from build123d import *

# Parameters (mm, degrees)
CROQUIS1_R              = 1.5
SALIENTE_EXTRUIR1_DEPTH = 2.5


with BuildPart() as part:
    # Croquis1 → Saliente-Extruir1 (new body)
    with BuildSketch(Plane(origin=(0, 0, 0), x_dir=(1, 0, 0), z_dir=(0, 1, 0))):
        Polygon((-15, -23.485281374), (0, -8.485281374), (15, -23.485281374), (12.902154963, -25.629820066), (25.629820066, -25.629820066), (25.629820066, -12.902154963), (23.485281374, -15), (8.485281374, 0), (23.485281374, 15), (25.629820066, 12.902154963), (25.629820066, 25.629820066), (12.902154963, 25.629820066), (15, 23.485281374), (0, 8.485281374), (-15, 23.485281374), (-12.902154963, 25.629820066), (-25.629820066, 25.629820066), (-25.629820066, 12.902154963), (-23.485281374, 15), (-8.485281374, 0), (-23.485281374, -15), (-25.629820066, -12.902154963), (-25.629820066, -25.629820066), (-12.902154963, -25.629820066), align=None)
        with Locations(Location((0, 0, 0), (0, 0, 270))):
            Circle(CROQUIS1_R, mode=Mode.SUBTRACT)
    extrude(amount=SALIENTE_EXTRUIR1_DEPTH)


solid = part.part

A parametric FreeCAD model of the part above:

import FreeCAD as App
import Part
import Sketcher
Q = App.Units.Quantity

doc = App.newDocument("Part")
body = doc.addObject("PartDesign::Body", "Body")

# Sketch on XZ plane
sketch1 = body.newObject("Sketcher::SketchObject", "Sketch")
sketch1.AttachmentSupport = (doc.getObject("XZ_Plane"), [""])
sketch1.MapMode = "FlatFace"
sketch1.addGeometry([
    Part.LineSegment(App.Vector(-15, 23.485281, 0), App.Vector(0, 8.485281, 0)),  # 0
    Part.LineSegment(App.Vector(0, 8.485281, 0), App.Vector(15, 23.485281, 0)),  # 1
    Part.LineSegment(App.Vector(15, 23.485281, 0), App.Vector(12.902155, 25.62982, 0)),  # 2
    Part.LineSegment(App.Vector(12.902155, 25.62982, 0), App.Vector(25.62982, 25.62982, 0)),  # 3
    Part.LineSegment(App.Vector(25.62982, 25.62982, 0), App.Vector(25.62982, 12.902155, 0)),  # 4
    Part.LineSegment(App.Vector(25.62982, 12.902155, 0), App.Vector(23.485281, 15, 0)),  # 5
    Part.LineSegment(App.Vector(23.485281, 15, 0), App.Vector(8.485281, 0, 0)),  # 6
    Part.LineSegment(App.Vector(8.485281, 0, 0), App.Vector(23.485281, -15, 0)),  # 7
    Part.LineSegment(App.Vector(23.485281, -15, 0), App.Vector(25.62982, -12.902155, 0)),  # 8
    Part.LineSegment(App.Vector(25.62982, -12.902155, 0), App.Vector(25.62982, -25.62982, 0)),  # 9
    Part.LineSegment(App.Vector(25.62982, -25.62982, 0), App.Vector(12.902155, -25.62982, 0)),  # 10
    Part.LineSegment(App.Vector(12.902155, -25.62982, 0), App.Vector(15, -23.485281, 0)),  # 11
    Part.LineSegment(App.Vector(15, -23.485281, 0), App.Vector(0, -8.485281, 0)),  # 12
    Part.LineSegment(App.Vector(0, -8.485281, 0), App.Vector(-15, -23.485281, 0)),  # 13
    Part.LineSegment(App.Vector(-15, -23.485281, 0), App.Vector(-12.902155, -25.62982, 0)),  # 14
    Part.LineSegment(App.Vector(-12.902155, -25.62982, 0), App.Vector(-25.62982, -25.62982, 0)),  # 15
    Part.LineSegment(App.Vector(-25.62982, -25.62982, 0), App.Vector(-25.62982, -12.902155, 0)),  # 16
    Part.LineSegment(App.Vector(-25.62982, -12.902155, 0), App.Vector(-23.485281, -15, 0)),  # 17
    Part.LineSegment(App.Vector(-23.485281, -15, 0), App.Vector(-8.485281, 0, 0)),  # 18
    Part.LineSegment(App.Vector(-8.485281, 0, 0), App.Vector(-23.485281, 15, 0)),  # 19
    Part.LineSegment(App.Vector(-23.485281, 15, 0), App.Vector(-25.62982, 12.902155, 0)),  # 20
    Part.LineSegment(App.Vector(-25.62982, 12.902155, 0), App.Vector(-25.62982, 25.62982, 0)),  # 21
    Part.LineSegment(App.Vector(-25.62982, 25.62982, 0), App.Vector(-12.902155, 25.62982, 0)),  # 22
    Part.LineSegment(App.Vector(-12.902155, 25.62982, 0), App.Vector(-15, 23.485281, 0)),  # 23
    Part.Circle(App.Vector(0, 0, 0), App.Vector(0, 0, 1), 1.5),  # 24
], False)
sketch1.addConstraint([
    Sketcher.Constraint("Coincident", 0, 2, 1, 1),
    Sketcher.Constraint("Coincident", 1, 2, 2, 1),
    Sketcher.Constraint("Coincident", 2, 2, 3, 1),
    Sketcher.Constraint("Coincident", 3, 2, 4, 1),
    Sketcher.Constraint("Coincident", 4, 2, 5, 1),
    Sketcher.Constraint("Coincident", 5, 2, 6, 1),
    Sketcher.Constraint("Coincident", 6, 2, 7, 1),
    Sketcher.Constraint("Coincident", 7, 2, 8, 1),
    Sketcher.Constraint("Coincident", 8, 2, 9, 1),
    Sketcher.Constraint("Coincident", 9, 2, 10, 1),
    Sketcher.Constraint("Coincident", 10, 2, 11, 1),
    Sketcher.Constraint("Coincident", 11, 2, 12, 1),
    Sketcher.Constraint("Coincident", 12, 2, 13, 1),
    Sketcher.Constraint("Coincident", 13, 2, 14, 1),
    Sketcher.Constraint("Coincident", 14, 2, 15, 1),
    Sketcher.Constraint("Coincident", 15, 2, 16, 1),
    Sketcher.Constraint("Coincident", 16, 2, 17, 1),
    Sketcher.Constraint("Coincident", 17, 2, 18, 1),
    Sketcher.Constraint("Coincident", 18, 2, 19, 1),
    Sketcher.Constraint("Coincident", 19, 2, 20, 1),
    Sketcher.Constraint("Coincident", 20, 2, 21, 1),
    Sketcher.Constraint("Coincident", 21, 2, 22, 1),
    Sketcher.Constraint("Coincident", 22, 2, 23, 1),
    Sketcher.Constraint("Coincident", 23, 2, 0, 1),
    Sketcher.Constraint("Horizontal", 3),
    Sketcher.Constraint("Vertical", 4),
    Sketcher.Constraint("Vertical", 9),
    Sketcher.Constraint("Horizontal", 10),
    Sketcher.Constraint("Horizontal", 15),
    Sketcher.Constraint("Vertical", 16),
    Sketcher.Constraint("Vertical", 21),
    Sketcher.Constraint("Horizontal", 22),
    Sketcher.Constraint("Coincident", 24, 3, -1, 1),
    Sketcher.Constraint("Symmetric", 0, 2, 12, 2, -1, 1),
    Sketcher.Constraint("Symmetric", 1, 2, 13, 2, -1, 1),
    Sketcher.Constraint("Symmetric", 2, 2, 14, 2, -1, 1),
    Sketcher.Constraint("Symmetric", 4, 2, 16, 2, -1, 1),
    Sketcher.Constraint("Symmetric", 5, 2, 17, 2, -1, 1),
    Sketcher.Constraint("Symmetric", 6, 2, 18, 2, -1, 1),
    Sketcher.Constraint("Symmetric", 7, 2, 19, 2, -1, 1),
    Sketcher.Constraint("Symmetric", 8, 2, 20, 2, -1, 1),
    Sketcher.Constraint("Symmetric", 10, 2, 22, 2, -1, 1),
    Sketcher.Constraint("Symmetric", 11, 2, 23, 2, -1, 1),
    Sketcher.Constraint("Symmetric", 11, 2, 13, 2, -2),
    Sketcher.Constraint("Symmetric", 10, 2, 14, 2, -2),
    Sketcher.Constraint("Symmetric", 8, 2, 16, 2, -2),
    Sketcher.Constraint("Symmetric", 7, 2, 17, 2, -2),
    Sketcher.Constraint("PointOnObject", 0, 2, -2),
    Sketcher.Constraint("PointOnObject", 6, 2, -1),
    Sketcher.Constraint("Perpendicular", 0, 1),
    Sketcher.Constraint("Parallel", 1, 6),
    Sketcher.Constraint("Perpendicular", 2, 8),
    Sketcher.Constraint("Equal", 22, 4),
    Sketcher.Constraint("Equal", 2, 5),
    Sketcher.Constraint("Equal", 1, 6),
    Sketcher.Constraint("Diameter", 24, Q("3 mm")),
    Sketcher.Constraint("Distance", 2, Q("3 mm")),
    Sketcher.Constraint("DistanceX", -1, 1, 1, 2, Q("15 mm")),
    Sketcher.Constraint("DistanceX", 3, 1, 3, 2, Q("12.727665 mm")),
    Sketcher.Constraint("DistanceY", -1, 1, 0, 2, Q("8.485281 mm")),
])
pad1 = body.newObject("PartDesign::Pad", "Pad")
pad1.Profile = sketch1
pad1.Length = 2.5
pad1.Reversed = True

doc.recompute()
